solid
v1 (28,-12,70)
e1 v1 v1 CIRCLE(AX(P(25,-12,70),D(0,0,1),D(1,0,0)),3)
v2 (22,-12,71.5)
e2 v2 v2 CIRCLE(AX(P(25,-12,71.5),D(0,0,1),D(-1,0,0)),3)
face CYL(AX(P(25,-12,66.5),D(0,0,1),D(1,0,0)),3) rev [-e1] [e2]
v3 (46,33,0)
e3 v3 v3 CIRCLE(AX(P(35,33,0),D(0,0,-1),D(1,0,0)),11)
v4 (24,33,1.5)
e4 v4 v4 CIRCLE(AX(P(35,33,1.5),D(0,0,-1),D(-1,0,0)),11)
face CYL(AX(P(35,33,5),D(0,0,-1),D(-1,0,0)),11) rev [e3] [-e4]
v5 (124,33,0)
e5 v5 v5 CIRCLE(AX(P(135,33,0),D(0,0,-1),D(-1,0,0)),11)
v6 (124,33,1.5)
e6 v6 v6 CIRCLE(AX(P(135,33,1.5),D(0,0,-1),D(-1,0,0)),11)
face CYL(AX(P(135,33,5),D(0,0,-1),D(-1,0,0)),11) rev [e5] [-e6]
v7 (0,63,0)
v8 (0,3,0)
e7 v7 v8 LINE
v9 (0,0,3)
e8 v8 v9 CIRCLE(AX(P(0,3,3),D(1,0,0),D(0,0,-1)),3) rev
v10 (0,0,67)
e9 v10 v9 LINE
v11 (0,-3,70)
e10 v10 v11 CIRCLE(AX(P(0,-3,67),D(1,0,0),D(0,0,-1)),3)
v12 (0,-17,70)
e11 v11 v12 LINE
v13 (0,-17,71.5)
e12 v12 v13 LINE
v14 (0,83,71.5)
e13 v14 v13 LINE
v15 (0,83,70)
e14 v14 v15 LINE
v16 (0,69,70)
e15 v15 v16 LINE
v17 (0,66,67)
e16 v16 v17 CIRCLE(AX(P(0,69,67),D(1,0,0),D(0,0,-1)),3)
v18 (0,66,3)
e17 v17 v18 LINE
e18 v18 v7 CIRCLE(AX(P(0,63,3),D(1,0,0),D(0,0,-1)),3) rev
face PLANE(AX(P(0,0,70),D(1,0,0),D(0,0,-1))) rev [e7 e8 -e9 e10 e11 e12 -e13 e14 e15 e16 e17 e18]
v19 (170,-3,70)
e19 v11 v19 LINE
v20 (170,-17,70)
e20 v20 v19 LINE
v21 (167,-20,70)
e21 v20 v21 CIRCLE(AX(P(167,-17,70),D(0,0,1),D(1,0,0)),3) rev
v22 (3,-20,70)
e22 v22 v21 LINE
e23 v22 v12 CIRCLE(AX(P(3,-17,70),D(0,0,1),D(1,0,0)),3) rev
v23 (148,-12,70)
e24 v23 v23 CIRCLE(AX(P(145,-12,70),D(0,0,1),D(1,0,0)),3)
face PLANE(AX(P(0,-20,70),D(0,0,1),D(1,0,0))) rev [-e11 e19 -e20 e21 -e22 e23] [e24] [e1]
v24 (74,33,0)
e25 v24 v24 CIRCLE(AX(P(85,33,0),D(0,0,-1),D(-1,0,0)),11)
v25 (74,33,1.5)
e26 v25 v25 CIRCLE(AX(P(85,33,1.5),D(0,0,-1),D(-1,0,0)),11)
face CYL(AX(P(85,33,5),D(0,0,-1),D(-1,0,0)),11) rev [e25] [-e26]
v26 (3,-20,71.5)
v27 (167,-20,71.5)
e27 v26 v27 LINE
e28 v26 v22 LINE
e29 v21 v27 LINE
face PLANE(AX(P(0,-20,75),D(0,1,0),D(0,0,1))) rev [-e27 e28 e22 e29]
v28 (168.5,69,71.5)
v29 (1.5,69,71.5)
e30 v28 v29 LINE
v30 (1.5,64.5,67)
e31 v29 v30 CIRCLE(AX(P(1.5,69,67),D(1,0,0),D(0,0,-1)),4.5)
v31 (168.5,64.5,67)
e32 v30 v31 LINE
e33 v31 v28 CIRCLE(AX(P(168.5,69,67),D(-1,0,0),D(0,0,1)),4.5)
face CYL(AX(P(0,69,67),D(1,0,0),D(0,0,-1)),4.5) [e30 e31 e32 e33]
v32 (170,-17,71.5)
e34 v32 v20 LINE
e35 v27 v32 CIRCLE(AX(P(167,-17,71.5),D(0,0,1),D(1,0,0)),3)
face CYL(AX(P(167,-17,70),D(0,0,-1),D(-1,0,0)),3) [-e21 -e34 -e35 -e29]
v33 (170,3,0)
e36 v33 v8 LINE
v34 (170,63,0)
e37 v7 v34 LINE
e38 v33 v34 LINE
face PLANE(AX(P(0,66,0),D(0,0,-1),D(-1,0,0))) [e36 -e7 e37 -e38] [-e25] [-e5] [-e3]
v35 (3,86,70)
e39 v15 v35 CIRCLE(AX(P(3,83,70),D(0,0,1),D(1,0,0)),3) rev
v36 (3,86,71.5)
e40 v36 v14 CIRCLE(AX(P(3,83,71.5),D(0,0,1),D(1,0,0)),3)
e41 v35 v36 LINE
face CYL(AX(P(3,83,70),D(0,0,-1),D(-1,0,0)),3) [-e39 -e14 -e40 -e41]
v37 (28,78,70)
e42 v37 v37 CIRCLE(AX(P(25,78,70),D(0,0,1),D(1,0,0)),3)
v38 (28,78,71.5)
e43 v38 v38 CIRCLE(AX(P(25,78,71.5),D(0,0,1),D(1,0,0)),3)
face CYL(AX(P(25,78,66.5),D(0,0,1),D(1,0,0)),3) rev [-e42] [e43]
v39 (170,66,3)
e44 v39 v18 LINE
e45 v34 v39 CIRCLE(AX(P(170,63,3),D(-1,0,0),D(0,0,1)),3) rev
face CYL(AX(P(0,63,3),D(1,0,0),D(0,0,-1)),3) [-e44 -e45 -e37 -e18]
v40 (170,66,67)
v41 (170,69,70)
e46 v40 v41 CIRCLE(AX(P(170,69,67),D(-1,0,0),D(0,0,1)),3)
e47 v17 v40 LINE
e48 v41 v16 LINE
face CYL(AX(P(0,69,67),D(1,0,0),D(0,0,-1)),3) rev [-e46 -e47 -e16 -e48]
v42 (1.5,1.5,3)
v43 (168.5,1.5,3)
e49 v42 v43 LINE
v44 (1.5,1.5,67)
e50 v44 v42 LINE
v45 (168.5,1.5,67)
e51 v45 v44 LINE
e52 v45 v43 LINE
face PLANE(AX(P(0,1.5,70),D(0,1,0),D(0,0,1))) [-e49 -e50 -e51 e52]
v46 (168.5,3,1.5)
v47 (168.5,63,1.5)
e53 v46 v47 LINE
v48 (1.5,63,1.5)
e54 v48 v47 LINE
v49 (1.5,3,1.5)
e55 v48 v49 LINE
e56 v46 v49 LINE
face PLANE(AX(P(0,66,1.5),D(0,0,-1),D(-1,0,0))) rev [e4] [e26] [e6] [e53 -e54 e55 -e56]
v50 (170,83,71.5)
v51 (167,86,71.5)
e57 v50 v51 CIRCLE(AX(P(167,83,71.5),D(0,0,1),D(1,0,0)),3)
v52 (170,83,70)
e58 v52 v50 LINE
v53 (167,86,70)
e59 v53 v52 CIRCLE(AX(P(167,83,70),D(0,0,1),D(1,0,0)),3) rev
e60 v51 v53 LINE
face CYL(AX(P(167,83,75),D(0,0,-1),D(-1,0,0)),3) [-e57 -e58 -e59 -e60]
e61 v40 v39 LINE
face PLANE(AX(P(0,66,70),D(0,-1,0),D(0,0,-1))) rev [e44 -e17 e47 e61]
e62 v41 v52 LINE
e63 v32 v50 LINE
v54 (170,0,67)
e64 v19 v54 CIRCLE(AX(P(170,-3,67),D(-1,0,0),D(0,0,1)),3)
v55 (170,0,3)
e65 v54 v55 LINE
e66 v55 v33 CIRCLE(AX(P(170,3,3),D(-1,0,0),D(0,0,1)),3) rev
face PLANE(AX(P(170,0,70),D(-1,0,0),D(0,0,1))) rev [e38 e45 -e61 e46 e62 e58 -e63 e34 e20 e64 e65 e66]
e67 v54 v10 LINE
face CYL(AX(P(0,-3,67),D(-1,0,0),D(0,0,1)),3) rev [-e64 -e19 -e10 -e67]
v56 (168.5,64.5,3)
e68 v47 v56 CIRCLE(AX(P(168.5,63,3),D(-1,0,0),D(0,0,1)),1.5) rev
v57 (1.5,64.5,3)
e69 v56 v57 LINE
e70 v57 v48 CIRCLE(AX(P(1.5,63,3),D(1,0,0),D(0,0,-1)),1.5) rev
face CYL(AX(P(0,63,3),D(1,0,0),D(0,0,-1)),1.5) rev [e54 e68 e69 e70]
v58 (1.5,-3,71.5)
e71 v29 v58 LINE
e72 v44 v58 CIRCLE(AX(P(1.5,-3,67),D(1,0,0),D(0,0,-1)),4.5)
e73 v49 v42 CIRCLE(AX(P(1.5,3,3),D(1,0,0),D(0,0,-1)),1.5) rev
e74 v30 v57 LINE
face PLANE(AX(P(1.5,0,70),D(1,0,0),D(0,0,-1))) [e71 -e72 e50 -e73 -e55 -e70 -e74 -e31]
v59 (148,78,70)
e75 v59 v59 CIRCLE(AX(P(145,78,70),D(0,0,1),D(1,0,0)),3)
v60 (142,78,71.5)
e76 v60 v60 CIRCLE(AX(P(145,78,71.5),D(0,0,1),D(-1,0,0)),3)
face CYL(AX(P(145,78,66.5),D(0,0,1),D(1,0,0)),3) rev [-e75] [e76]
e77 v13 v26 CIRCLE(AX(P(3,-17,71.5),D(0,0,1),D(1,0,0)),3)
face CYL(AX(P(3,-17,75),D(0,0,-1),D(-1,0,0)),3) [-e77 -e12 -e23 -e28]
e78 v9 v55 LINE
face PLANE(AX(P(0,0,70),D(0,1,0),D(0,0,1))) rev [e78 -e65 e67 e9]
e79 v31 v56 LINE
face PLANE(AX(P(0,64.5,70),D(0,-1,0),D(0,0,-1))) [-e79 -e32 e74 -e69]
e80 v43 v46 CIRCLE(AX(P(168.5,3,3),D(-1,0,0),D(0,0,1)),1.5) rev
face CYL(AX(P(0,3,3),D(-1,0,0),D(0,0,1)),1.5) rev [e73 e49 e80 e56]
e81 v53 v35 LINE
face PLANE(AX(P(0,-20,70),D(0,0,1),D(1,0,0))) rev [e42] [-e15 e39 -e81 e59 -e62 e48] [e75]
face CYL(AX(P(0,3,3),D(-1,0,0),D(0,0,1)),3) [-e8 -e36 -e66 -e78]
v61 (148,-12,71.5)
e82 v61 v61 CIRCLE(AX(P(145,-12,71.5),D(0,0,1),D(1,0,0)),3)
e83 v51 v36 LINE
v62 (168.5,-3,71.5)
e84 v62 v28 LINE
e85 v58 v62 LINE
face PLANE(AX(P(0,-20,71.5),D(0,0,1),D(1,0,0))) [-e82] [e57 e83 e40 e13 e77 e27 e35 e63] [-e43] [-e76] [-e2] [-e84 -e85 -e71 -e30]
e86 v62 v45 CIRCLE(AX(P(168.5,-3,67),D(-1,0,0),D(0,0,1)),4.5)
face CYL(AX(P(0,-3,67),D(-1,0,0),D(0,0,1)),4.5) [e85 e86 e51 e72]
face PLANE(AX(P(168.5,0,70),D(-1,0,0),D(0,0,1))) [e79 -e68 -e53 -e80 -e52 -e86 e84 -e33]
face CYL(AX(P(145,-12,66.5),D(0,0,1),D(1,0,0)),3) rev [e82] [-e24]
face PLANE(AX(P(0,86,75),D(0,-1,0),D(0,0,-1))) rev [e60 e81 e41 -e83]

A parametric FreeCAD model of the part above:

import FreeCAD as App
import Part
import Sketcher
Q = App.Units.Quantity


def edges_at(feature, points):
    """Names of the edges that pass closest to the given points."""
    edges = feature.Shape.Edges
    near = lambda p: min(range(len(edges)), key=lambda i: edges[i].distToShape(Part.Vertex(*p))[0])
    return sorted({f"Edge{near(p) + 1}" for p in points})


def faces_at(feature, points):
    """Names of the faces that lie closest to the given points."""
    faces = feature.Shape.Faces
    near = lambda p: min(range(len(faces)), key=lambda i: faces[i].distToShape(Part.Vertex(*p))[0])
    return sorted({f"Face{near(p) + 1}" for p in points})

doc = App.newDocument("Part")
body = doc.addObject("PartDesign::Body", "Body")

# Sketch on XY plane
sketch1 = doc.addObject("Sketcher::SketchObject", "Sketch")
body.addObject(sketch1)
sketch1.AttachmentSupport = (doc.XY_Plane, [""])
sketch1.MapMode = "FlatFace"
sketch1.addGeometry(Part.LineSegment(App.Vector(0, 66, 0), App.Vector(0, 0, 0)), False)
sketch1.addGeometry(Part.LineSegment(App.Vector(0, 0, 0), App.Vector(170, 0, 0)), False)
sketch1.addGeometry(Part.LineSegment(App.Vector(170, 0, 0), App.Vector(170, 66, 0)), False)
sketch1.addGeometry(Part.LineSegment(App.Vector(170, 66, 0), App.Vector(0, 66, 0)), False)
sketch1.addConstraint(Sketcher.Constraint("Coincident", 0, 2, 1, 1))
sketch1.addConstraint(Sketcher.Constraint("Coincident", 1, 2, 2, 1))
sketch1.addConstraint(Sketcher.Constraint("Coincident", 2, 2, 3, 1))
sketch1.addConstraint(Sketcher.Constraint("Coincident", 3, 2, 0, 1))
sketch1.addConstraint(Sketcher.Constraint("Vertical", 0))
sketch1.addConstraint(Sketcher.Constraint("Horizontal", 1))
sketch1.addConstraint(Sketcher.Constraint("Vertical", 2))
sketch1.addConstraint(Sketcher.Constraint("Horizontal", 3))
sketch1.addConstraint(Sketcher.Constraint("Coincident", 0, 2, -1, 1))
sketch1.addConstraint(Sketcher.Constraint("DistanceX", 1, 1, 1, 2, Q("170 mm")))
sketch1.addConstraint(Sketcher.Constraint("DistanceY", 0, 2, 0, 1, Q("66 mm")))
pad1 = doc.addObject("PartDesign::Pad", "Pad")
body.addObject(pad1)
pad1.Profile = sketch1
pad1.Length = 70

# Sketch on XY plane
sketch2 = doc.addObject("Sketcher::SketchObject", "Sketch001")
body.addObject(sketch2)
sketch2.AttachmentSupport = (doc.XY_Plane, [""])
sketch2.MapMode = "FlatFace"
sketch2.AttachmentOffset = App.Placement(App.Vector(0, 0, 70), App.Rotation())
sketch2.addGeometry(Part.LineSegment(App.Vector(0, 86, 0), App.Vector(0, -20, 0)), False)
sketch2.addGeometry(Part.LineSegment(App.Vector(0, -20, 0), App.Vector(170, -20, 0)), False)
sketch2.addGeometry(Part.LineSegment(App.Vector(170, -20, 0), App.Vector(170, 86, 0)), False)
sketch2.addGeometry(Part.LineSegment(App.Vector(170, 86, 0), App.Vector(0, 86, 0)), False)
sketch2.addConstraint(Sketcher.Constraint("Coincident", 0, 2, 1, 1))
sketch2.addConstraint(Sketcher.Constraint("Coincident", 1, 2, 2, 1))
sketch2.addConstraint(Sketcher.Constraint("Coincident", 2, 2, 3, 1))
sketch2.addConstraint(Sketcher.Constraint("Coincident", 3, 2, 0, 1))
sketch2.addConstraint(Sketcher.Constraint("Vertical", 0))
sketch2.addConstraint(Sketcher.Constraint("Horizontal", 1))
sketch2.addConstraint(Sketcher.Constraint("Vertical", 2))
sketch2.addConstraint(Sketcher.Constraint("Horizontal", 3))
sketch2.addConstraint(Sketcher.Constraint("PointOnObject", 0, 2, -2))
sketch2.addConstraint(Sketcher.Constraint("DistanceX", 1, 1, 1, 2, Q("170 mm")))
sketch2.addConstraint(Sketcher.Constraint("DistanceY", 0, 2, 0, 1, Q("106 mm")))
sketch2.addConstraint(Sketcher.Constraint("DistanceY", 0, 2, -1, 1, Q("20 mm")))
pad2 = doc.addObject("PartDesign::Pad", "Pad001")
body.addObject(pad2)
pad2.Profile = sketch2
pad2.Length = 5
doc.recompute()

fillet = doc.addObject("PartDesign::Fillet", "Fillet")
body.addObject(fillet)
fillet.Base = (pad2, edges_at(pad2, [
    (85, 0, 70),
    (85, 0, 0),
    (85, 66, 0),
    (85, 66, 70),
]))
fillet.Radius = 3
doc.recompute()

thickness = doc.addObject("PartDesign::Thickness", "Thickness")
body.addObject(thickness)
thickness.Base = (fillet, faces_at(fillet, [(85, -20, 72.5), (85, 86, 72.5), (85, 33, 75)]))
thickness.Value = 1.5
thickness.Reversed = True
thickness.Join = "Intersection"

# Sketch on YZ plane
sketch3 = doc.addObject("Sketcher::SketchObject", "Sketch002")
body.addObject(sketch3)
sketch3.AttachmentSupport = (doc.YZ_Plane, [""])
sketch3.MapMode = "FlatFace"
sketch3.AttachmentOffset = App.Placement(App.Vector(0, 0, 168.5), App.Rotation())
sketch3.addGeometry(Part.LineSegment(App.Vector(86, 71.5, 0), App.Vector(-20, 71.5, 0)), False)
sketch3.addGeometry(Part.LineSegment(App.Vector(-20, 71.5, 0), App.Vector(-20, 75, 0)), False)
sketch3.addGeometry(Part.LineSegment(App.Vector(-20, 75, 0), App.Vector(86, 75, 0)), False)
sketch3.addGeometry(Part.LineSegment(App.Vector(86, 75, 0), App.Vector(86, 71.5, 0)), False)
sketch3.addConstraint(Sketcher.Constraint("Coincident", 0, 2, 1, 1))
sketch3.addConstraint(Sketcher.Constraint("Coincident", 1, 2, 2, 1))
sketch3.addConstraint(Sketcher.Constraint("Coincident", 2, 2, 3, 1))
sketch3.addConstraint(Sketcher.Constraint("Coincident", 3, 2, 0, 1))
sketch3.addConstraint(Sketcher.Constraint("Horizontal", 0))
sketch3.addConstraint(Sketcher.Constraint("Vertical", 1))
sketch3.addConstraint(Sketcher.Constraint("Horizontal", 2))
sketch3.addConstraint(Sketcher.Constraint("Vertical", 3))
sketch3.addConstraint(Sketcher.Constraint("DistanceX", 0, 2, 0, 1, Q("106 mm")))
sketch3.addConstraint(Sketcher.Constraint("DistanceY", 1, 1, 1, 2, Q("3.5 mm")))
sketch3.addConstraint(Sketcher.Constraint("DistanceX", 0, 2, -1, 1, Q("20 mm")))
sketch3.addConstraint(Sketcher.Constraint("DistanceY", -1, 1, 1, 2, Q("75 mm")))
pocket1 = doc.addObject("PartDesign::Pocket", "Pocket")
body.addObject(pocket1)
pocket1.Profile = sketch3
pocket1.Type = "ThroughAll"
pocket1.Midplane = True

# Sketch on XY plane
sketch4 = doc.addObject("Sketcher::SketchObject", "Sketch003")
body.addObject(sketch4)
sketch4.AttachmentSupport = (doc.XY_Plane, [""])
sketch4.MapMode = "FlatFace"
sketch4.addGeometry(Part.Circle(App.Vector(135, 33, 0), App.Vector(0, 0, 1), 11), False)
sketch4.addGeometry(Part.Circle(App.Vector(85, 33, 0), App.Vector(0, 0, 1), 11), False)
sketch4.addGeometry(Part.Circle(App.Vector(35, 33, 0), App.Vector(0, 0, 1), 11), False)
sketch4.addConstraint(Sketcher.Constraint("Equal", 0, 1))
sketch4.addConstraint(Sketcher.Constraint("Equal", 1, 2))
sketch4.addConstraint(Sketcher.Constraint("Horizontal", 0, 3, 1, 3))
sketch4.addConstraint(Sketcher.Constraint("Horizontal", 1, 3, 2, 3))
sketch4.addConstraint(Sketcher.Constraint("Diameter", 0, Q("22 mm")))
sketch4.addConstraint(Sketcher.Constraint("DistanceX", -1, 1, 0, 3, Q("135 mm")))
sketch4.addConstraint(Sketcher.Constraint("DistanceY", -1, 1, 0, 3, Q("33 mm")))
sketch4.addConstraint(Sketcher.Constraint("DistanceX", -1, 1, 1, 3, Q("85 mm")))
sketch4.addConstraint(Sketcher.Constraint("DistanceX", -1, 1, 2, 3, Q("35 mm")))
pocket2 = doc.addObject("PartDesign::Pocket", "Pocket001")
body.addObject(pocket2)
pocket2.Profile = sketch4
pocket2.Length = 5
pocket2.Reversed = True

# Sketch on XY plane
sketch5 = doc.addObject("Sketcher::SketchObject", "Sketch004")
body.addObject(sketch5)
sketch5.AttachmentSupport = (doc.XY_Plane, [""])
sketch5.MapMode = "FlatFace"
sketch5.AttachmentOffset = App.Placement(App.Vector(0, 0, 71.5), App.Rotation())
sketch5.addGeometry(Part.Circle(App.Vector(145, -12, 0), App.Vector(0, 0, 1), 3), False)
sketch5.addGeometry(Part.Circle(App.Vector(25, -12, 0), App.Vector(0, 0, 1), 3), False)
sketch5.addGeometry(Part.Circle(App.Vector(25, 78, 0), App.Vector(0, 0, 1), 3), False)
sketch5.addGeometry(Part.Circle(App.Vector(145, 78, 0), App.Vector(0, 0, 1), 3), False)
sketch5.addConstraint(Sketcher.Constraint("Equal", 0, 1))
sketch5.addConstraint(Sketcher.Constraint("Equal", 1, 2))
sketch5.addConstraint(Sketcher.Constraint("Equal", 2, 3))
sketch5.addConstraint(Sketcher.Constraint("Horizontal", 0, 3, 1, 3))
sketch5.addConstraint(Sketcher.Constraint("Horizontal", 2, 3, 3, 3))
sketch5.addConstraint(Sketcher.Constraint("Vertical", 1, 3, 2, 3))
sketch5.addConstraint(Sketcher.Constraint("Vertical", 0, 3, 3, 3))
sketch5.addConstraint(Sketcher.Constraint("Diameter", 0, Q("6 mm")))
sketch5.addConstraint(Sketcher.Constraint("DistanceX", -1, 1, 0, 3, Q("145 mm")))
sketch5.addConstraint(Sketcher.Constraint("DistanceY", 0, 3, -1, 1, Q("12 mm")))
sketch5.addConstraint(Sketcher.Constraint("DistanceX", -1, 1, 1, 3, Q("25 mm")))
sketch5.addConstraint(Sketcher.Constraint("DistanceY", -1, 1, 2, 3, Q("78 mm")))
pocket3 = doc.addObject("PartDesign::Pocket", "Pocket002")
body.addObject(pocket3)
pocket3.Profile = sketch5
pocket3.Length = 5
doc.recompute()

fillet2 = doc.addObject("PartDesign::Fillet", "Fillet001")
body.addObject(fillet2)
fillet2.Base = (pocket3, edges_at(pocket3, [
    (170, 86, 70.75),
    (0, 86, 70.75),
    (0, -20, 70.75),
    (170, -20, 70.75),
]))
fillet2.Radius = 3

doc.recompute()
